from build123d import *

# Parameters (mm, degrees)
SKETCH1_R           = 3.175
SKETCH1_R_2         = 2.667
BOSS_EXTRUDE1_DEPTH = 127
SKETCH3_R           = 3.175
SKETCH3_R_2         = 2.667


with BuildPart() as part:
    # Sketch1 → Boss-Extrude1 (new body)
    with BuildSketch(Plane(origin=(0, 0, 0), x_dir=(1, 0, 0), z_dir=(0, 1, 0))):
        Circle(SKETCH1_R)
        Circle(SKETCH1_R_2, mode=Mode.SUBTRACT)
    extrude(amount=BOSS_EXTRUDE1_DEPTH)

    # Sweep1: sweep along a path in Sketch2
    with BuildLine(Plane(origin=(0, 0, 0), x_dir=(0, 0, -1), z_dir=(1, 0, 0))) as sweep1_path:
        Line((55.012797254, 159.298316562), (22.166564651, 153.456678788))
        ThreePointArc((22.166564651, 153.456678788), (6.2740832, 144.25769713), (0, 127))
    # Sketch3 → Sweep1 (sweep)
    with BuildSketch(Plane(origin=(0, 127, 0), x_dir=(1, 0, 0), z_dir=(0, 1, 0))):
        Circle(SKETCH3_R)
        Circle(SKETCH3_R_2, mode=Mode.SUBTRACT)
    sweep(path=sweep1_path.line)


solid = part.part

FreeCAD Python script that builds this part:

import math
import FreeCAD as App
import Part
import Sketcher

V = App.Vector
Q = App.Units.Quantity

doc = App.newDocument("Part")
body = doc.addObject("PartDesign::Body", "Body")

# Sketch on XZ plane
sketch1 = doc.addObject("Sketcher::SketchObject", "Sketch")
body.addObject(sketch1)
sketch1.AttachmentSupport = (doc.XZ_Plane, [""])
sketch1.MapMode = "FlatFace"
sketch1.addGeometry(Part.Circle(V(0, 0, 0), V(0, 0, 1), 3.2), False)
sketch1.addGeometry(Part.Circle(V(0, 0, 0), V(0, 0, 1), 2.7), False)
sketch1.addConstraint(Sketcher.Constraint("Coincident", 0, 3, -1, 1))
sketch1.addConstraint(Sketcher.Constraint("Coincident", 1, 3, -1, 1))
sketch1.addConstraint(Sketcher.Constraint("Diameter", 0, Q("0.25 in")))
sketch1.addConstraint(Sketcher.Constraint("Diameter", 1, Q("0.21 in")))
pad1 = doc.addObject("PartDesign::Pad", "Pad")
body.addObject(pad1)
pad1.Profile = sketch1
pad1.Length = Q("5 in")
pad1.Reversed = True

# Sketch on XZ plane
sketch2 = doc.addObject("Sketcher::SketchObject", "Sketch001")
body.addObject(sketch2)
sketch2.AttachmentSupport = (doc.XZ_Plane, [""])
sketch2.MapMode = "FlatFace"
sketch2.AttachmentOffset = App.Placement(V(0, 0, -5 * 25.4), App.Rotation())
sketch2.addGeometry(Part.Circle(V(0, 0, 0), V(0, 0, 1), 3.2), False)
sketch2.addGeometry(Part.Circle(V(0, 0, 0), V(0, 0, 1), 2.7), False)
sketch2.addConstraint(Sketcher.Constraint("Coincident", 0, 3, -1, 1))
sketch2.addConstraint(Sketcher.Constraint("Coincident", 1, 3, -1, 1))
sketch2.addConstraint(Sketcher.Constraint("Diameter", 0, Q("0.25 in")))
sketch2.addConstraint(Sketcher.Constraint("Diameter", 1, Q("0.21 in")))

# Sketch on YZ plane
sketch3 = doc.addObject("Sketcher::SketchObject", "Sketch002")
body.addObject(sketch3)
sketch3.AttachmentSupport = (doc.YZ_Plane, [""])
sketch3.MapMode = "FlatFace"
sketch3.addGeometry(Part.LineSegment(V(159, -55, 0), V(153, -22, 0)), False)
sketch3.addGeometry(Part.ArcOfCircle(Part.Circle(V(127, -27, 0), V(0, 0, 1), 27), math.radians(10), math.radians(90)), False)
sketch3.addConstraint(Sketcher.Constraint("Tangent", 0, 2, 1, 1))
sketch3.addConstraint(Sketcher.Constraint("PointOnObject", 1, 2, -1))
sketch3.addConstraint(Sketcher.Constraint("DistanceX", -1, 1, 1, 3, Q("5 in")))
sketch3.addConstraint(Sketcher.Constraint("DistanceX", -1, 1, 1, 2, Q("5 in")))
sketch3.addConstraint(Sketcher.Constraint("Radius", 1, Q("26.871833 mm")))
sketch3.addConstraint(Sketcher.Constraint("Distance", 0, Q("33.361651 mm")))
sketch3.addConstraint(Sketcher.Constraint("DistanceX", -1, 1, 0, 2, Q("153.456679 mm")))
doc.recompute()

additivepipe = doc.addObject("PartDesign::AdditivePipe", "AdditivePipe")
body.addObject(additivepipe)
additivepipe.Profile = sketch2
additivepipe.Spine = (sketch3, ["Edge1", "Edge2"])

doc.recompute()
